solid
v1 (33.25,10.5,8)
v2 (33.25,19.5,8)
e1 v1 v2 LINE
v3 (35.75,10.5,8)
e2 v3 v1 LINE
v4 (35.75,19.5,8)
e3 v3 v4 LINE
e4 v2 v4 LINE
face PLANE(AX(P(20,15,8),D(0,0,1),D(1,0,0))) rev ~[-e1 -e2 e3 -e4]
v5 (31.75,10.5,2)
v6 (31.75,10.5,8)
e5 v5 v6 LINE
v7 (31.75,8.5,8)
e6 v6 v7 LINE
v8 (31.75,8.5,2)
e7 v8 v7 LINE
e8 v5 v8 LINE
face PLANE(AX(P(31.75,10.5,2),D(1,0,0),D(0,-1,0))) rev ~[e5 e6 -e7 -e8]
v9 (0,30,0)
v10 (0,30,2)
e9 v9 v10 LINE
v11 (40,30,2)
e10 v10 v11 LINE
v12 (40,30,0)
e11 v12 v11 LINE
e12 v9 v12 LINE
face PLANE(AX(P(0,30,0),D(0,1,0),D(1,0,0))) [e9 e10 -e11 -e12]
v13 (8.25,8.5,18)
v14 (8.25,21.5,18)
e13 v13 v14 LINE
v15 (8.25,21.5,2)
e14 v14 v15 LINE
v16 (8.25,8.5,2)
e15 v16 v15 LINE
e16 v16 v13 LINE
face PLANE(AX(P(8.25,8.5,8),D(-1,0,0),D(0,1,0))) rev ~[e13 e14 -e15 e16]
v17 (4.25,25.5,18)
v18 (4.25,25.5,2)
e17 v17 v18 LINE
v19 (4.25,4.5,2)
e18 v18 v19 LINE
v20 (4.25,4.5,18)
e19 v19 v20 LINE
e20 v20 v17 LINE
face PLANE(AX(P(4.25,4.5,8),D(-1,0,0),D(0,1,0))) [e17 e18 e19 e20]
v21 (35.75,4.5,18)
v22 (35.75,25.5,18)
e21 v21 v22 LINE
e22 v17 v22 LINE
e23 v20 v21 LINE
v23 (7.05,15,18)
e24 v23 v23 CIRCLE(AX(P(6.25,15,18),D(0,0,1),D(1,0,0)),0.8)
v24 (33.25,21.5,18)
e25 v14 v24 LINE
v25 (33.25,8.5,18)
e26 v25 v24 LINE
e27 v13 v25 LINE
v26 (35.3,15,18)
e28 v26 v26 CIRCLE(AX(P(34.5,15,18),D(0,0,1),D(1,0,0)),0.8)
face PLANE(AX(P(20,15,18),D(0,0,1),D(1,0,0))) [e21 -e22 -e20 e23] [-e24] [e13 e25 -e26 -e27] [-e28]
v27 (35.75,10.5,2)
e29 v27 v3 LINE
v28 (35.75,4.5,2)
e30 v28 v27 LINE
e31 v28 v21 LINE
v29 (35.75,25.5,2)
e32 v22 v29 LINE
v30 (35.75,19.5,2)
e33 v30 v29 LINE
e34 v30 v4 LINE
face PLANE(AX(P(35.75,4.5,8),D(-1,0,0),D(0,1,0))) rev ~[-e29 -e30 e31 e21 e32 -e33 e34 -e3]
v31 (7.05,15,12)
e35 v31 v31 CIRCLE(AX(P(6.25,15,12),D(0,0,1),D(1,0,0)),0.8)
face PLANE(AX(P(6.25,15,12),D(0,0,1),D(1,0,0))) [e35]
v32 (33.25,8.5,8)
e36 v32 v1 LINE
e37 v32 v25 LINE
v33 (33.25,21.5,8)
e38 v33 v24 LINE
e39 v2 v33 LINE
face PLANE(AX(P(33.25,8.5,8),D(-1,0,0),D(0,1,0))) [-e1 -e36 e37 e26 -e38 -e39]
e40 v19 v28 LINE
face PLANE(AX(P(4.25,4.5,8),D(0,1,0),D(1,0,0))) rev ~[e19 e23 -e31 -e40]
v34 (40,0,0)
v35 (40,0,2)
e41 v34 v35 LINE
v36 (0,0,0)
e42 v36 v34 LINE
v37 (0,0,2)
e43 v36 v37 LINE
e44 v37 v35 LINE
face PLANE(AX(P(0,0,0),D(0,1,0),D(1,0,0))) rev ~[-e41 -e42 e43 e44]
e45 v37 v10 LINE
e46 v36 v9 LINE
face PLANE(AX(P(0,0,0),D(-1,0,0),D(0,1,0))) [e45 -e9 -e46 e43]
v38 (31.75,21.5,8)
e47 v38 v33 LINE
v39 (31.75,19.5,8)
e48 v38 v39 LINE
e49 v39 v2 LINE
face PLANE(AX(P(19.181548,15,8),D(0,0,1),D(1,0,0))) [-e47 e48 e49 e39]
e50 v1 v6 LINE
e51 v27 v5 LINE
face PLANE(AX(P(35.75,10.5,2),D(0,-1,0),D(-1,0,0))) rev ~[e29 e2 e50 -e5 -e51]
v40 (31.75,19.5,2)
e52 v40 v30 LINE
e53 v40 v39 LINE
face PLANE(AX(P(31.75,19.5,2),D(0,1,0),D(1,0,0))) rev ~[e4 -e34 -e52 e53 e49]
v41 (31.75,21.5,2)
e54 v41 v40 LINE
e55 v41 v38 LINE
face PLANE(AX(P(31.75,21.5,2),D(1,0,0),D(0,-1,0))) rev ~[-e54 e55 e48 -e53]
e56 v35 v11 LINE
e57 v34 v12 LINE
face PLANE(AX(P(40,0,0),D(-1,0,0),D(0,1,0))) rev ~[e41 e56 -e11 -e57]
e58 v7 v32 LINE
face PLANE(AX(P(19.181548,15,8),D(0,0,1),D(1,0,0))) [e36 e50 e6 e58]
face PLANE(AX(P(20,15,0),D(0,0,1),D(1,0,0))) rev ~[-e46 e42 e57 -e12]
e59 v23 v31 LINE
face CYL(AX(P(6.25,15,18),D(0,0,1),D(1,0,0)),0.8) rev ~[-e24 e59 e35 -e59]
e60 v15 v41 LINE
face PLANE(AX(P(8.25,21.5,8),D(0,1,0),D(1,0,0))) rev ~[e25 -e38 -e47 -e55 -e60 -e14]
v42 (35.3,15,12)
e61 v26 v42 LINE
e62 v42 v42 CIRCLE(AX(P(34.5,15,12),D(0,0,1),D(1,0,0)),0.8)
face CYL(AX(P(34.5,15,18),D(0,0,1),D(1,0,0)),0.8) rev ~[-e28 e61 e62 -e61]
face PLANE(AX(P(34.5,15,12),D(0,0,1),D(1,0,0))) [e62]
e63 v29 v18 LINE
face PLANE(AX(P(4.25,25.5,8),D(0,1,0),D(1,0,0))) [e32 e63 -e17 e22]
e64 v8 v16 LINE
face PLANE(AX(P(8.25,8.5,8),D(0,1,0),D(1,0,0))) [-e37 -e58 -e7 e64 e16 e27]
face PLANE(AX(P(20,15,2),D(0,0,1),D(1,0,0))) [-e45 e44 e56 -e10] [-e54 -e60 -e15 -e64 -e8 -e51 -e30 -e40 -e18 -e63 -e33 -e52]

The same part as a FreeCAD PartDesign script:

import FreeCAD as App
import Part
import Sketcher

V = App.Vector
Q = App.Units.Quantity


def add_polygon(sketch, points):
    """Adds a closed chain of lines whose ends are joined by coincident constraints."""
    first, n = sketch.GeometryCount, len(points)
    for a, b in zip(points, points[1:] + points[:1]):
        sketch.addGeometry(Part.LineSegment(App.Vector(*a, 0), App.Vector(*b, 0)), False)
    for i in range(n):
        sketch.addConstraint(Sketcher.Constraint("Coincident", first + i, 2, first + (i + 1) % n, 1))

doc = App.newDocument("Part")
body = doc.addObject("PartDesign::Body", "Body")

# Sketch on XY plane
sketch1 = body.newObject("Sketcher::SketchObject", "Sketch")
sketch1.AttachmentSupport = (doc.getObject("XY_Plane"), [""])
sketch1.MapMode = "FlatFace"
add_polygon(sketch1, [(0, 30), (0, 0), (40, 0), (40, 30)])  # lines 0-3
sketch1.addConstraint(Sketcher.Constraint("Vertical", 0))
sketch1.addConstraint(Sketcher.Constraint("Horizontal", 1))
sketch1.addConstraint(Sketcher.Constraint("Vertical", 2))
sketch1.addConstraint(Sketcher.Constraint("Horizontal", 3))
sketch1.addConstraint(Sketcher.Constraint("Coincident", 0, 2, -1, 1))
sketch1.addConstraint(Sketcher.Constraint("DistanceX", 1, 1, 1, 2, Q("40 mm")))
sketch1.addConstraint(Sketcher.Constraint("DistanceY", 0, 2, 0, 1, Q("30 mm")))
pad1 = body.newObject("PartDesign::Pad", "Pad")
pad1.Profile = sketch1
pad1.Length = 2

# Sketch on XY plane
sketch2 = body.newObject("Sketcher::SketchObject", "Sketch001")
sketch2.AttachmentSupport = (doc.getObject("XY_Plane"), [""])
sketch2.MapMode = "FlatFace"
sketch2.AttachmentOffset = App.Placement(V(0, 0, 2), App.Rotation())
add_polygon(sketch2, [(35.8, 19.5), (35.8, 25.5), (4.2, 25.5), (4.2, 4.5), (35.8, 4.5), (35.8, 10.5), (31.8, 10.5), (31.8, 8.5), (8.2, 8.5), (8.2, 21.5), (31.8, 21.5), (31.8, 19.5)])  # lines 0-11
sketch2.addConstraint(Sketcher.Constraint("Vertical", 0))
sketch2.addConstraint(Sketcher.Constraint("Horizontal", 1))
sketch2.addConstraint(Sketcher.Constraint("Vertical", 2))
sketch2.addConstraint(Sketcher.Constraint("Horizontal", 3))
sketch2.addConstraint(Sketcher.Constraint("Vertical", 4))
sketch2.addConstraint(Sketcher.Constraint("Horizontal", 5))
sketch2.addConstraint(Sketcher.Constraint("Vertical", 6))
sketch2.addConstraint(Sketcher.Constraint("Horizontal", 7))
sketch2.addConstraint(Sketcher.Constraint("Vertical", 8))
sketch2.addConstraint(Sketcher.Constraint("Horizontal", 9))
sketch2.addConstraint(Sketcher.Constraint("Vertical", 10))
sketch2.addConstraint(Sketcher.Constraint("Horizontal", 11))
sketch2.addConstraint(Sketcher.Constraint("Vertical", 0, 2, 3, 2))
sketch2.addConstraint(Sketcher.Constraint("Vertical", 6, 2, 9, 2))
sketch2.addConstraint(Sketcher.Constraint("Equal", 0, 4))
sketch2.addConstraint(Sketcher.Constraint("Equal", 6, 10))
sketch2.addConstraint(Sketcher.Constraint("DistanceX", 5, 2, 5, 1, Q("4 mm")))
sketch2.addConstraint(Sketcher.Constraint("DistanceY", 0, 1, 0, 2, Q("6 mm")))
sketch2.addConstraint(Sketcher.Constraint("DistanceY", 2, 2, 2, 1, Q("21 mm")))
sketch2.addConstraint(Sketcher.Constraint("DistanceY", 6, 2, 6, 1, Q("2 mm")))
sketch2.addConstraint(Sketcher.Constraint("DistanceX", 1, 2, 1, 1, Q("31.5 mm")))
sketch2.addConstraint(Sketcher.Constraint("DistanceX", 7, 2, 7, 1, Q("23.5 mm")))
sketch2.addConstraint(Sketcher.Constraint("DistanceY", -1, 1, 0, 2, Q("25.5 mm")))
sketch2.addConstraint(Sketcher.Constraint("DistanceX", -1, 1, 0, 2, Q("35.75 mm")))
pad2 = body.newObject("PartDesign::Pad", "Pad001")
pad2.Profile = sketch2
pad2.Length = 6

# Sketch on XY plane
sketch3 = body.newObject("Sketcher::SketchObject", "Sketch002")
sketch3.AttachmentSupport = (doc.getObject("XY_Plane"), [""])
sketch3.MapMode = "FlatFace"
sketch3.AttachmentOffset = App.Placement(V(0, 0, 8), App.Rotation())
add_polygon(sketch3, [(4, 26), (4, 4), (36, 4), (36, 26)])  # lines 0-3
add_polygon(sketch3, [(33, 8), (8, 8), (8, 22), (33, 22)])  # lines 4-7
sketch3.addConstraint(Sketcher.Constraint("Vertical", 0))
sketch3.addConstraint(Sketcher.Constraint("Horizontal", 1))
sketch3.addConstraint(Sketcher.Constraint("Vertical", 2))
sketch3.addConstraint(Sketcher.Constraint("Horizontal", 3))
sketch3.addConstraint(Sketcher.Constraint("Horizontal", 4))
sketch3.addConstraint(Sketcher.Constraint("Vertical", 5))
sketch3.addConstraint(Sketcher.Constraint("Horizontal", 6))
sketch3.addConstraint(Sketcher.Constraint("Vertical", 7))
sketch3.addConstraint(Sketcher.Constraint("DistanceX", 4, 2, 4, 1, Q("25 mm")))
sketch3.addConstraint(Sketcher.Constraint("DistanceY", 0, 2, 0, 1, Q("21 mm")))
sketch3.addConstraint(Sketcher.Constraint("DistanceY", 5, 1, 5, 2, Q("13 mm")))
sketch3.addConstraint(Sketcher.Constraint("DistanceX", 1, 1, 1, 2, Q("31.5 mm")))
sketch3.addConstraint(Sketcher.Constraint("DistanceX", 0, 2, 4, 2, Q("4 mm")))
sketch3.addConstraint(Sketcher.Constraint("DistanceY", 0, 2, 4, 2, Q("4 mm")))
sketch3.addConstraint(Sketcher.Constraint("DistanceY", -1, 1, 0, 2, Q("4.5 mm")))
sketch3.addConstraint(Sketcher.Constraint("DistanceX", -1, 1, 0, 2, Q("4.25 mm")))
pad3 = body.newObject("PartDesign::Pad", "Pad002")
pad3.Profile = sketch3
pad3.Length = 10

# Sketch on XY plane
sketch4 = body.newObject("Sketcher::SketchObject", "Sketch003")
sketch4.AttachmentSupport = (doc.getObject("XY_Plane"), [""])
sketch4.MapMode = "FlatFace"
sketch4.AttachmentOffset = App.Placement(V(0, 0, 18), App.Rotation())
sketch4.addGeometry(Part.Circle(V(6.2, 15, 0), V(0, 0, 1), 0.8), False)
sketch4.addGeometry(Part.Circle(V(34.5, 15, 0), V(0, 0, 1), 0.8), False)
sketch4.addConstraint(Sketcher.Constraint("Equal", 0, 1))
sketch4.addConstraint(Sketcher.Constraint("Horizontal", 0, 3, 1, 3))
sketch4.addConstraint(Sketcher.Constraint("Diameter", 0, Q("1.6 mm")))
sketch4.addConstraint(Sketcher.Constraint("DistanceY", -1, 1, 0, 3, Q("15 mm")))
sketch4.addConstraint(Sketcher.Constraint("DistanceX", -1, 1, 1, 3, Q("34.5 mm")))
sketch4.addConstraint(Sketcher.Constraint("DistanceX", -1, 1, 0, 3, Q("6.25 mm")))
pocket1 = body.newObject("PartDesign::Pocket", "Pocket")
pocket1.Profile = sketch4
pocket1.Length = 6

doc.recompute()
